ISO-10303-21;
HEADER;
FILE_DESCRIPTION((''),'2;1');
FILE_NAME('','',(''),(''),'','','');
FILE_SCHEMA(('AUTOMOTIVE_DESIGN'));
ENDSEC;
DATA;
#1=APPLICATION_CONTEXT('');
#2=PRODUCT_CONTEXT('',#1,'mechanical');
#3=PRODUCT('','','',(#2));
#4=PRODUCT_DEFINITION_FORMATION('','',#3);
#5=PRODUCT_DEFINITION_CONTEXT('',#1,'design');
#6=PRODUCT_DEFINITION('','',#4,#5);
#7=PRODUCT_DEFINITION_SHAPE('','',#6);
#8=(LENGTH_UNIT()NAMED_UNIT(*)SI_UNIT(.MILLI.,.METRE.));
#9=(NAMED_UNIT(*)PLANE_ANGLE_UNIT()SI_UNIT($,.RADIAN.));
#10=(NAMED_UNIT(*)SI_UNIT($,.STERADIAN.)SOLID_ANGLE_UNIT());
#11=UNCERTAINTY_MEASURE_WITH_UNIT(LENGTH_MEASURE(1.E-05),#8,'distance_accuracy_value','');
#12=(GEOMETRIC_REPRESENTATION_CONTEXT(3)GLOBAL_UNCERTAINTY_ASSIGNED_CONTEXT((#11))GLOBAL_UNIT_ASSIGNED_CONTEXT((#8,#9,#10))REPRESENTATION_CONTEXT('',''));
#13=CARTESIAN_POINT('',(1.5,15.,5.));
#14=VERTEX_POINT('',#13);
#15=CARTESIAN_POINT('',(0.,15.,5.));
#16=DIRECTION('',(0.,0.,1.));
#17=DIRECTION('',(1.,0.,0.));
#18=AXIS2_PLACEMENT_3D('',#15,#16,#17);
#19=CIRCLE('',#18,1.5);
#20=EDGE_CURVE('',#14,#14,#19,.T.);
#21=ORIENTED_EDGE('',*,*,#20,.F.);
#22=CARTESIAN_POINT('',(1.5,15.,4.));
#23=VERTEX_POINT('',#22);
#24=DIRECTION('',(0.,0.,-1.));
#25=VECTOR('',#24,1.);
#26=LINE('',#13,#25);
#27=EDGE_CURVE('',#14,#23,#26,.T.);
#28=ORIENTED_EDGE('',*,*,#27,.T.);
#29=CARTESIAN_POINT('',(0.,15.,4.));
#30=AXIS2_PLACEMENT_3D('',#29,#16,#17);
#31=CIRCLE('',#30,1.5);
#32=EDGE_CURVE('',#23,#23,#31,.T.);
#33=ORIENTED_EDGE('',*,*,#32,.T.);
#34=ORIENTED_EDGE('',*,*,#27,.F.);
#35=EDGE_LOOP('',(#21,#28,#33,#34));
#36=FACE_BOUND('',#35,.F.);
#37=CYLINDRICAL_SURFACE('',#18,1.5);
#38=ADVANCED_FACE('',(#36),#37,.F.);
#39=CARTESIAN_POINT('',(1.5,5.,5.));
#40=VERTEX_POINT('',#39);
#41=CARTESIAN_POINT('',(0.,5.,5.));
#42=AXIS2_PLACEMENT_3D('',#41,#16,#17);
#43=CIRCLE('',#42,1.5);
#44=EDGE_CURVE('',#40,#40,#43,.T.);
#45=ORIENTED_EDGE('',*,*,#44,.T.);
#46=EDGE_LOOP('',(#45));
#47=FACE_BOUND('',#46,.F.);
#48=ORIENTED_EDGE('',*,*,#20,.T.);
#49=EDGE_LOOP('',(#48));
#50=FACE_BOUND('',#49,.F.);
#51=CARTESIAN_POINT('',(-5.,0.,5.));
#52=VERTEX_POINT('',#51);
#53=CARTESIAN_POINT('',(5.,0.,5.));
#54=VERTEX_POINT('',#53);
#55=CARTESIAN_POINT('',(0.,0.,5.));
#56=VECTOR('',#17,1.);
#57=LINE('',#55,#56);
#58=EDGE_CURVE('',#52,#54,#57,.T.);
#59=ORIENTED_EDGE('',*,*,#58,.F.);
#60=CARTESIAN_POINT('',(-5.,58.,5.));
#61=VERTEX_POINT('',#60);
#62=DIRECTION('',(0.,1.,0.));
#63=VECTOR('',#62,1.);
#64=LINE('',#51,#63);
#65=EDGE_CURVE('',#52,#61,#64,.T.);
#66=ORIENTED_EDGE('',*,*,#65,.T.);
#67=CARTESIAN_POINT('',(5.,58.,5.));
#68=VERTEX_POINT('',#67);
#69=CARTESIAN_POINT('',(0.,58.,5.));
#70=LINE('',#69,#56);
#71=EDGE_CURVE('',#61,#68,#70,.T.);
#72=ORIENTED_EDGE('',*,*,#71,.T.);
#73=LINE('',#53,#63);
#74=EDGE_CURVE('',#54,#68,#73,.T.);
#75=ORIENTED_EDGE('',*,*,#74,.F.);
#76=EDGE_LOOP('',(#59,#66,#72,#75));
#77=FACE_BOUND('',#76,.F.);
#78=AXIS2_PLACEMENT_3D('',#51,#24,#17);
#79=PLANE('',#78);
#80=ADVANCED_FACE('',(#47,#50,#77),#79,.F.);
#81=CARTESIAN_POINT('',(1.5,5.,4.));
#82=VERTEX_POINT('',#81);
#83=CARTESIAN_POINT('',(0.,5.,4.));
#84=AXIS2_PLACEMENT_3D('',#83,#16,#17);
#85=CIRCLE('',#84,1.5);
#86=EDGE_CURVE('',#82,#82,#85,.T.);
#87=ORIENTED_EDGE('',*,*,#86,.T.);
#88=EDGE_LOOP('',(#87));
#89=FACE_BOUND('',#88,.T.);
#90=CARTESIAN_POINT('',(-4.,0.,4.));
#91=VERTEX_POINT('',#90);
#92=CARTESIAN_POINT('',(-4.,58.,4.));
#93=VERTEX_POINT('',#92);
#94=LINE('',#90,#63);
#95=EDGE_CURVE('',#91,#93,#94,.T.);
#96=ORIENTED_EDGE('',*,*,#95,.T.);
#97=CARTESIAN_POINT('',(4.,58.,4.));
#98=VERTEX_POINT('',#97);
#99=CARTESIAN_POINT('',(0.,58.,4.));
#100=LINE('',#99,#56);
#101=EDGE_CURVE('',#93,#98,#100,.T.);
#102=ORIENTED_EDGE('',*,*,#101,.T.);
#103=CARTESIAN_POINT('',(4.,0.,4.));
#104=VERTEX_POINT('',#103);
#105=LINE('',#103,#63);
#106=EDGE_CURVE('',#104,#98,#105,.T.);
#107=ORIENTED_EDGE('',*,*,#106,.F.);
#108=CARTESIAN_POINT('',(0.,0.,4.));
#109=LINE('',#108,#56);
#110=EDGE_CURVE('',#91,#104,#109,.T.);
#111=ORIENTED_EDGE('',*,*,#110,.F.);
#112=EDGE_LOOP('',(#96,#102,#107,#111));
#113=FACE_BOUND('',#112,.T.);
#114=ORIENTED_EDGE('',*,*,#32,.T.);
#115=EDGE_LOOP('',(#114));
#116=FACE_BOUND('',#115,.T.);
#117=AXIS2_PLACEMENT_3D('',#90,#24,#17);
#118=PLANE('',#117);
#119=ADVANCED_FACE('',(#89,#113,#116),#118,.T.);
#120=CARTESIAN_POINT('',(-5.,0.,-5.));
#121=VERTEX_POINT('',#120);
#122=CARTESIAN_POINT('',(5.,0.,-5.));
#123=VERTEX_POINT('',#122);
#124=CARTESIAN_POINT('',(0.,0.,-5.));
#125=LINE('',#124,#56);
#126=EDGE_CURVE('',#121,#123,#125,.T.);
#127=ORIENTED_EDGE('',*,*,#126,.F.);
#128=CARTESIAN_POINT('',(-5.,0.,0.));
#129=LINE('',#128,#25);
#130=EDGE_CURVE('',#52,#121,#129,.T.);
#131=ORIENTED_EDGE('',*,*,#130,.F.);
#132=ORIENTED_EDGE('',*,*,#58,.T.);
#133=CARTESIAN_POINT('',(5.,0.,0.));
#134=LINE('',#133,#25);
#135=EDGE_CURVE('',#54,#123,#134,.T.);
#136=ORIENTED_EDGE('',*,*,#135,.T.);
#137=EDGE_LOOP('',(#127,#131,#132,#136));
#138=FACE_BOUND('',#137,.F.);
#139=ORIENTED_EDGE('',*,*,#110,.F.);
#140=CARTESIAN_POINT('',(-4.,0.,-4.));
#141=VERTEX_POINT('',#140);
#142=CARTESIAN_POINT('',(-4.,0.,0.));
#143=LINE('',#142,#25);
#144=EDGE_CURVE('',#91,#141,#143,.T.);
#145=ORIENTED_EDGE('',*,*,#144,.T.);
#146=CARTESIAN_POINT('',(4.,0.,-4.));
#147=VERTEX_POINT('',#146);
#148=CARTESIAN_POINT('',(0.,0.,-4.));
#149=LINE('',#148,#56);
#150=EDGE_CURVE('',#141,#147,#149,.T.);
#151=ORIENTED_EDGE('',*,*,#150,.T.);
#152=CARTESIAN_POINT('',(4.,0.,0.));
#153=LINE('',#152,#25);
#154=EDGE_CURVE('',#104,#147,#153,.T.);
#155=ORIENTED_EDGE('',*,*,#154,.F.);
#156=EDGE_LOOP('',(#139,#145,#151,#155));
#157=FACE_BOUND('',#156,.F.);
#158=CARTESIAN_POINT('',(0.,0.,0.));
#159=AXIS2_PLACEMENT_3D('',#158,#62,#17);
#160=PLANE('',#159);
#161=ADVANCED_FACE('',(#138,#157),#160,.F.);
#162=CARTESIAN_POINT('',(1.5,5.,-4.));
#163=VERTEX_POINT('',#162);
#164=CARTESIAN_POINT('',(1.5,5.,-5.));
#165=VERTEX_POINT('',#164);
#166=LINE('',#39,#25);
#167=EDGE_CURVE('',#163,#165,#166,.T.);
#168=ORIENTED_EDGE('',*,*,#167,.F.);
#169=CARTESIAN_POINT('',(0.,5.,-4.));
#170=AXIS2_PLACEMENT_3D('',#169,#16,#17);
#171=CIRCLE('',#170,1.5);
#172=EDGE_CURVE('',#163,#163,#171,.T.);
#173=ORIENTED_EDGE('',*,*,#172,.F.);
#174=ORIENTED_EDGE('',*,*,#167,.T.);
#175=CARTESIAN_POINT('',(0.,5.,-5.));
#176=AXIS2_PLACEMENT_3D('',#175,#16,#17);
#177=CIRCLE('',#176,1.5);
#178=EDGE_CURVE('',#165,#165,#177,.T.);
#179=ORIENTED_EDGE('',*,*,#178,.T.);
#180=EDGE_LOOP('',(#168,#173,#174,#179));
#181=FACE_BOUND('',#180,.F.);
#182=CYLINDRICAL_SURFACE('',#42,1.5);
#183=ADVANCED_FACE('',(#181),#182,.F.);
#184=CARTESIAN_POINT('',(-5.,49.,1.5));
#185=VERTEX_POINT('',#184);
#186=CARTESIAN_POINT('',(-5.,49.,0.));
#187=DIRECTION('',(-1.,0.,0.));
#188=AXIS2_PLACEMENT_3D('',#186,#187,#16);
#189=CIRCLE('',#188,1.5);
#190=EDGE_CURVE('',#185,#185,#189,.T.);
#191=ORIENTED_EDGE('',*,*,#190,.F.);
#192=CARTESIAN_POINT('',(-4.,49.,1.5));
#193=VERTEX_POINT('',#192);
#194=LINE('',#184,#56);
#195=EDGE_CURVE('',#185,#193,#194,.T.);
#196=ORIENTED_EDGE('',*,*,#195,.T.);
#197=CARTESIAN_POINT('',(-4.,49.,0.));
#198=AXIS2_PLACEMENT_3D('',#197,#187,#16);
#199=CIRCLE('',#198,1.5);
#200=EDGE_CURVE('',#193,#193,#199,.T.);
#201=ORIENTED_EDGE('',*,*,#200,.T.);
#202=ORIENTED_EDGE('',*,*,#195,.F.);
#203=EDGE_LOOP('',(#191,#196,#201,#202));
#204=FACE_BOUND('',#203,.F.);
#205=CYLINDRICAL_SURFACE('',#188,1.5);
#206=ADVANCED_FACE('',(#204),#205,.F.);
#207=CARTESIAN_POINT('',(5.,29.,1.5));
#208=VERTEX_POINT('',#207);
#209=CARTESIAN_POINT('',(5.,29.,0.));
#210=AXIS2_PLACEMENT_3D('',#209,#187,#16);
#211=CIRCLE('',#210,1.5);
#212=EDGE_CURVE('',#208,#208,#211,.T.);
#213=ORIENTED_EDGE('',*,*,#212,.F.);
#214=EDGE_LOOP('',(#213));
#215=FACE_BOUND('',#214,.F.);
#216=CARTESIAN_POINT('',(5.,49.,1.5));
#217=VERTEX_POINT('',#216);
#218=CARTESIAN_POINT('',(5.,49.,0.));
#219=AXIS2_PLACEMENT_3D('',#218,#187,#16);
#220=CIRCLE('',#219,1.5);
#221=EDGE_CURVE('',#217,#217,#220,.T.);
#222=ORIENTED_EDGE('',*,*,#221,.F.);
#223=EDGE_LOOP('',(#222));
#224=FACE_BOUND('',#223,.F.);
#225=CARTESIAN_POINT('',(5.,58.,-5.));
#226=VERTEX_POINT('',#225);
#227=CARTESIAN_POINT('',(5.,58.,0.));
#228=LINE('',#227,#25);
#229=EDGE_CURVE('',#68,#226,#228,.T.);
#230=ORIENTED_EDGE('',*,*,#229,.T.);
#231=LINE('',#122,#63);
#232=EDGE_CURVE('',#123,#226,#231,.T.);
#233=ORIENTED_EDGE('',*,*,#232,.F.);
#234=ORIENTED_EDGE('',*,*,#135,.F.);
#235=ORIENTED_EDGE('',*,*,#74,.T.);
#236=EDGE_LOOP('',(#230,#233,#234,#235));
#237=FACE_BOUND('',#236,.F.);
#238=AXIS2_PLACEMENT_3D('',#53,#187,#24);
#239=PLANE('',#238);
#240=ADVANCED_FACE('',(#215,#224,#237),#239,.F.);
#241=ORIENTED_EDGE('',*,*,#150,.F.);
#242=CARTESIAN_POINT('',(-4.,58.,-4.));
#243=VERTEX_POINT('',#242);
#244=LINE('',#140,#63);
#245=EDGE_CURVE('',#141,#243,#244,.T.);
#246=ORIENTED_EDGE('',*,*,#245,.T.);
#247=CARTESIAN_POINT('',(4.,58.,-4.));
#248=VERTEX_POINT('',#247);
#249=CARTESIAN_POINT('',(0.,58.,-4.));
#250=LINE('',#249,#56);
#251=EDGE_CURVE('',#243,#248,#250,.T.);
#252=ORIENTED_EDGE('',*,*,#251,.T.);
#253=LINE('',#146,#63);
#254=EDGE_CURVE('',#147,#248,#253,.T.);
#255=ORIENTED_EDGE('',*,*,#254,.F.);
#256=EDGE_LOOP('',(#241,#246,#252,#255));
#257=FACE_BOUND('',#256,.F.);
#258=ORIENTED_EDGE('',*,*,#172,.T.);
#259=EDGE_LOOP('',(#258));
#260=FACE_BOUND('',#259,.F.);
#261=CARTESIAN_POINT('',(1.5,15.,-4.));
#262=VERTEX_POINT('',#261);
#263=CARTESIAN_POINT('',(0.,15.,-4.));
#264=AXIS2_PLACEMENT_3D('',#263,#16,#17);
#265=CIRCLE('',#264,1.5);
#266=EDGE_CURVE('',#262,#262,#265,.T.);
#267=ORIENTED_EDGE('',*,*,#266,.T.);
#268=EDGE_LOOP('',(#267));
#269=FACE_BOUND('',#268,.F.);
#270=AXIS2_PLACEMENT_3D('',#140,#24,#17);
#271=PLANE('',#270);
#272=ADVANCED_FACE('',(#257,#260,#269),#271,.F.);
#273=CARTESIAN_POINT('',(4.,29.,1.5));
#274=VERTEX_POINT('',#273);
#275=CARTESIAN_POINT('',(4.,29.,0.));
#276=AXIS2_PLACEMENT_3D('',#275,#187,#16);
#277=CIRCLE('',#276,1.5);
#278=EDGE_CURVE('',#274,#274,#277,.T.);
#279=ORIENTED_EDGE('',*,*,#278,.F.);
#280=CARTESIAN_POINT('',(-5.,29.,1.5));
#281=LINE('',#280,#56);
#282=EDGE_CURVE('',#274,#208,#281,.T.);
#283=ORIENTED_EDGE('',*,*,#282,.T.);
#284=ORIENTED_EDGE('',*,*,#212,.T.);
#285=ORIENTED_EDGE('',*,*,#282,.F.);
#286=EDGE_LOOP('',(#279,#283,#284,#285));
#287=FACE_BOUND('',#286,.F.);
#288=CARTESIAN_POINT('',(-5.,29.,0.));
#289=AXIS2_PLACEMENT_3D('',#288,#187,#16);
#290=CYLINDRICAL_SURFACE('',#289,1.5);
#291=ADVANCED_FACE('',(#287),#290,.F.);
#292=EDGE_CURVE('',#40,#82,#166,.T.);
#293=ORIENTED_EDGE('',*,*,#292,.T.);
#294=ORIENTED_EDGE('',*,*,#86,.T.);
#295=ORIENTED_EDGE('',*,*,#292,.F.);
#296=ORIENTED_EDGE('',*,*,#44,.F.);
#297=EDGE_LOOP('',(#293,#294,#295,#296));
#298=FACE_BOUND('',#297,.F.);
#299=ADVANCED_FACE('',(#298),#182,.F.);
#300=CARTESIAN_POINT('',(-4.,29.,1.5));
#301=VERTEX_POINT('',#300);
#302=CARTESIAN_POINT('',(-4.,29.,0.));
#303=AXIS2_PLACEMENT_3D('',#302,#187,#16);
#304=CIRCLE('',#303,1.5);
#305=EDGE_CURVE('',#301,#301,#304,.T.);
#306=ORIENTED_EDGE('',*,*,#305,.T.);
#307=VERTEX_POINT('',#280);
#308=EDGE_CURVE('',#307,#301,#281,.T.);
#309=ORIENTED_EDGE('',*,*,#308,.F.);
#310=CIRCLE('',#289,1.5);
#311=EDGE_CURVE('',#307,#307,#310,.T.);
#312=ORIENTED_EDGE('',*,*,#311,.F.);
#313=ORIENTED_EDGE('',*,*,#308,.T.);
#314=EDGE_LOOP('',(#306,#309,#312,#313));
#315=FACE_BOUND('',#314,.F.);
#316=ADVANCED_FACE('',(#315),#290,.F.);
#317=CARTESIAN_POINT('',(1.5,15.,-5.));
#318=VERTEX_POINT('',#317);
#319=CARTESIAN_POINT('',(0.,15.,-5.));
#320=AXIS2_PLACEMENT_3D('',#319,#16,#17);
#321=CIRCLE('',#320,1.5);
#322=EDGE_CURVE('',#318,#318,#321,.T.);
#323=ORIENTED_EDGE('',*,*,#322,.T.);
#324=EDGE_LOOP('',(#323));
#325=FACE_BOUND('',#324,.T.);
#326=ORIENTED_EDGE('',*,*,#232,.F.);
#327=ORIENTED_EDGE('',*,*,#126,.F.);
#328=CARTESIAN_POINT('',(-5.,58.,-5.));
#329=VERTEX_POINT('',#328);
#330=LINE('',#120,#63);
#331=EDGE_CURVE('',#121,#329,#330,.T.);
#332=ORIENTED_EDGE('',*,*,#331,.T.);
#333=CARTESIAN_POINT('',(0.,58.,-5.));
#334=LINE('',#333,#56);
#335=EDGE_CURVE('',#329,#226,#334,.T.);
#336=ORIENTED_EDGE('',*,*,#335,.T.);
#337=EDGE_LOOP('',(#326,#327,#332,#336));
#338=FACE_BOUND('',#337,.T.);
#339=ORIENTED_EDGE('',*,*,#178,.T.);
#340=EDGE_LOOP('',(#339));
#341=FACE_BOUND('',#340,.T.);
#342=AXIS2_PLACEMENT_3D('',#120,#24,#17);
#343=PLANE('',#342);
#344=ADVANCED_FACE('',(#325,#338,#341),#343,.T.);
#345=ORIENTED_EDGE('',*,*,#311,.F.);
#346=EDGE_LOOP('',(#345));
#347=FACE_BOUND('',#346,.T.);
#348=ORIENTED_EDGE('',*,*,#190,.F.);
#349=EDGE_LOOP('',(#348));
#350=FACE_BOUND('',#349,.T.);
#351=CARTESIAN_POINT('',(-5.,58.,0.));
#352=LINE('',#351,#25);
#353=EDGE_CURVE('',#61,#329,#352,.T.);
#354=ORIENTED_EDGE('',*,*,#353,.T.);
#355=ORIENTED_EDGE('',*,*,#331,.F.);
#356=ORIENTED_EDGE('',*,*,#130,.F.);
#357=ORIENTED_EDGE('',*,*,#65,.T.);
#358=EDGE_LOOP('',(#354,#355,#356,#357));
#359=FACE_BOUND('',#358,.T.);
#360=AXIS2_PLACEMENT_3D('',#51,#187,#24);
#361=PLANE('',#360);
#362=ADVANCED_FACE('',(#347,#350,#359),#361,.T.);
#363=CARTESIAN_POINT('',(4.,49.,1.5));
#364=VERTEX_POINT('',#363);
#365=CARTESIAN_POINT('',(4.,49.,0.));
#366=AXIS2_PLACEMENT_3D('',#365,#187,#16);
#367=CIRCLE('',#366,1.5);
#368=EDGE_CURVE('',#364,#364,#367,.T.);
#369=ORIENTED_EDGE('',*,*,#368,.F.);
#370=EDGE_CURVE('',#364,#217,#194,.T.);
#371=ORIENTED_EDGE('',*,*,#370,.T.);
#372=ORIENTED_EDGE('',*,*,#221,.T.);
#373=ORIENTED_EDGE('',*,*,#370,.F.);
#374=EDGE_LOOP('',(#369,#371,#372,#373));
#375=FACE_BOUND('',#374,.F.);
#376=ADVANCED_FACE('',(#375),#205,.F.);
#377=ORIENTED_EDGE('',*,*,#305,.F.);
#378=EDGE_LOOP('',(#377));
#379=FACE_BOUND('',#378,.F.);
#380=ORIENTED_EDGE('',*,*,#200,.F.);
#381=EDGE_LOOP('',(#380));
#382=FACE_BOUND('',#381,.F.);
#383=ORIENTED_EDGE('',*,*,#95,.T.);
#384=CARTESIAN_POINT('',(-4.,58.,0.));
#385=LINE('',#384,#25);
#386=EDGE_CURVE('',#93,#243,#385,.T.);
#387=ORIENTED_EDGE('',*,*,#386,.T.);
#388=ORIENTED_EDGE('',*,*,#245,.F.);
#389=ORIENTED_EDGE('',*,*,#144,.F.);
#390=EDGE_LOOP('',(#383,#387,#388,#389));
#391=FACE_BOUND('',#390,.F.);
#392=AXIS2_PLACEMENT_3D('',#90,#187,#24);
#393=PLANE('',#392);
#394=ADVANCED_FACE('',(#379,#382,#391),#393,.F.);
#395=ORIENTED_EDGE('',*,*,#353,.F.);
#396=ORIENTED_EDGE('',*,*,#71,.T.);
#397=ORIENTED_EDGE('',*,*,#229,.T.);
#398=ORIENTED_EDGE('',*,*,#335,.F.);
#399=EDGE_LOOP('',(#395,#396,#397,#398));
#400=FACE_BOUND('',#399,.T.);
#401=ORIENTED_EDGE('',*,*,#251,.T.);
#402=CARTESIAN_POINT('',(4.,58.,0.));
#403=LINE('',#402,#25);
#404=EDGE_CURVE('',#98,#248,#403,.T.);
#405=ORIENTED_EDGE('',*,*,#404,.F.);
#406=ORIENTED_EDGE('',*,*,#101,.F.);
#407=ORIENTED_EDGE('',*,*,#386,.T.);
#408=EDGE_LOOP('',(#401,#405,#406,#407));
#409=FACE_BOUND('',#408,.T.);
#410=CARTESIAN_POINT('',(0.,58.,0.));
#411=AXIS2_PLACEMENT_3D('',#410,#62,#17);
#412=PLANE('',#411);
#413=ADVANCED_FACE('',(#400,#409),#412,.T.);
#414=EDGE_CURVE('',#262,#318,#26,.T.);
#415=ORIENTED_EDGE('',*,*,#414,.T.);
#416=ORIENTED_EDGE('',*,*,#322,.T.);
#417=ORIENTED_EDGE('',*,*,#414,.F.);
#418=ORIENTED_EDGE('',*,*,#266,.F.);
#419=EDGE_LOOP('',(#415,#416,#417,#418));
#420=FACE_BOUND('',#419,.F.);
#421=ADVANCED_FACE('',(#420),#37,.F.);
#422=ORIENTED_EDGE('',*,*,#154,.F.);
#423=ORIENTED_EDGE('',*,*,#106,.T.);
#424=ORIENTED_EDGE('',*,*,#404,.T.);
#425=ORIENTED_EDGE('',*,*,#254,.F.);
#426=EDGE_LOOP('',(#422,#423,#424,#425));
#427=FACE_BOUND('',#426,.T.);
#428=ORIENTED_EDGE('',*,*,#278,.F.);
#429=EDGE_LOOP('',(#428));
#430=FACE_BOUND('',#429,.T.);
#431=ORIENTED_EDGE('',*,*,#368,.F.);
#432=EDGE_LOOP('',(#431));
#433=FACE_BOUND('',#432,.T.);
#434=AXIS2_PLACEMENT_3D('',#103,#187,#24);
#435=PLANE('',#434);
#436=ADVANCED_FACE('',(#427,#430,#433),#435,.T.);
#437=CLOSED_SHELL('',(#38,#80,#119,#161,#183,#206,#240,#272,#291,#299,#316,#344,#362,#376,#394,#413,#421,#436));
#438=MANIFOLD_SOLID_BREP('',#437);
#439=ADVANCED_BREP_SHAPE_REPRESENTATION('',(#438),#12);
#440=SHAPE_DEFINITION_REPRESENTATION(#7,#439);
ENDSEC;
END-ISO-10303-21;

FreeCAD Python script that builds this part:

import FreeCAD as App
import Part
import Sketcher
from FreeCAD import Vector
Q = App.Units.Quantity


def add_polygon(sketch, points):
    """Adds a closed chain of lines whose ends are joined by coincident constraints."""
    first, n = sketch.GeometryCount, len(points)
    for a, b in zip(points, points[1:] + points[:1]):
        sketch.addGeometry(Part.LineSegment(App.Vector(*a, 0), App.Vector(*b, 0)), False)
    for i in range(n):
        sketch.addConstraint(Sketcher.Constraint("Coincident", first + i, 2, first + (i + 1) % n, 1))

doc = App.newDocument("Part")
params = doc.addObject("Spreadsheet::Sheet", "Params")
for row, (alias, value) in enumerate([
    ("sketch1_width", "10 mm"),
    ("sketch1_width2", "8 mm"),
    ("pad1_length", "58 mm"),
    ("sketch2_diameter", "3 mm"),
    ("pocket1_length", "30 mm"),
    ("sketch3_diameter", "3 mm"),
    ("pocket2_length", "30 mm"),
], start=1):
    params.set(f"A{row}", alias)
    params.set(f"B{row}", "=" + value)
    params.setAlias(f"B{row}", alias)

body = doc.addObject("PartDesign::Body", "Body")

# Sketch on XZ plane
sketch1 = doc.addObject("Sketcher::SketchObject", "Sketch")
body.addObject(sketch1)
sketch1.AttachmentSupport = (doc.XZ_Plane, [""])
sketch1.MapMode = "FlatFace"
add_polygon(sketch1, [(-5, -5), (-5, 5), (5, 5), (5, -5)])  # lines 0-3
add_polygon(sketch1, [(4, 4), (-4, 4), (-4, -4), (4, -4)])  # lines 4-7
sketch1.addConstraint([
    Sketcher.Constraint("Vertical", 0),
    Sketcher.Constraint("Horizontal", 1),
    Sketcher.Constraint("Vertical", 2),
    Sketcher.Constraint("Horizontal", 3),
    Sketcher.Constraint("Horizontal", 4),
    Sketcher.Constraint("Vertical", 5),
    Sketcher.Constraint("Horizontal", 6),
    Sketcher.Constraint("Vertical", 7),
    Sketcher.Constraint("Symmetric", 0, 2, 2, 2, -1, 1),
    Sketcher.Constraint("Symmetric", 4, 2, 6, 2, -1, 1),
    Sketcher.Constraint("Equal", 3, 0),
    Sketcher.Constraint("Equal", 6, 5),
    Sketcher.Constraint("DistanceX", 1, 1, 1, 2, Q("10 mm")),
    Sketcher.Constraint("DistanceX", 4, 2, 4, 1, Q("8 mm")),
])
sketch1.setExpression("Constraints[20]", "Params.sketch1_width")
sketch1.setExpression("Constraints[21]", "Params.sketch1_width2")
pad1 = doc.addObject("PartDesign::Pad", "Pad")
body.addObject(pad1)
pad1.Profile = sketch1
pad1.setExpression("Length", "Params.pad1_length")
pad1.Reversed = True

# Sketch on XY plane
sketch2 = doc.addObject("Sketcher::SketchObject", "Sketch001")
body.addObject(sketch2)
sketch2.AttachmentSupport = (doc.XY_Plane, [""])
sketch2.MapMode = "FlatFace"
sketch2.AttachmentOffset = App.Placement(Vector(0, 0, 5), App.Rotation())
sketch2.addGeometry([
    Part.Circle(Vector(0, 5, 0), Vector(0, 0, 1), 1.5),
    Part.Circle(Vector(0, 15, 0), Vector(0, 0, 1), 1.5),
], False)
sketch2.addConstraint([
    Sketcher.Constraint("Equal", 0, 1),
    Sketcher.Constraint("PointOnObject", 0, 3, -2),
    Sketcher.Constraint("PointOnObject", 1, 3, -2),
    Sketcher.Constraint("Diameter", 0, Q("3 mm")),
    Sketcher.Constraint("DistanceY", -1, 1, 0, 3, Q("5 mm")),
    Sketcher.Constraint("DistanceY", -1, 1, 1, 3, Q("15 mm")),
])
sketch2.setExpression("Constraints[3]", "Params.sketch2_diameter")
pocket1 = doc.addObject("PartDesign::Pocket", "Pocket")
body.addObject(pocket1)
pocket1.Profile = sketch2
pocket1.setExpression("Length", "Params.pocket1_length")

# Sketch on YZ plane
sketch3 = doc.addObject("Sketcher::SketchObject", "Sketch002")
body.addObject(sketch3)
sketch3.AttachmentSupport = (doc.YZ_Plane, [""])
sketch3.MapMode = "FlatFace"
sketch3.AttachmentOffset = App.Placement(Vector(0, 0, -5), App.Rotation())
sketch3.addGeometry([
    Part.Circle(Vector(49, 0, 0), Vector(0, 0, 1), 1.5),
    Part.Circle(Vector(29, 0, 0), Vector(0, 0, 1), 1.5),
], False)
sketch3.addConstraint([
    Sketcher.Constraint("Equal", 0, 1),
    Sketcher.Constraint("PointOnObject", 0, 3, -1),
    Sketcher.Constraint("PointOnObject", 1, 3, -1),
    Sketcher.Constraint("Diameter", 0, Q("3 mm")),
    Sketcher.Constraint("DistanceX", -1, 1, 0, 3, Q("49 mm")),
    Sketcher.Constraint("DistanceX", -1, 1, 1, 3, Q("29 mm")),
])
sketch3.setExpression("Constraints[3]", "Params.sketch3_diameter")
pocket2 = doc.addObject("PartDesign::Pocket", "Pocket001")
body.addObject(pocket2)
pocket2.Profile = sketch3
pocket2.setExpression("Length", "Params.pocket2_length")
pocket2.Reversed = True

doc.recompute()
